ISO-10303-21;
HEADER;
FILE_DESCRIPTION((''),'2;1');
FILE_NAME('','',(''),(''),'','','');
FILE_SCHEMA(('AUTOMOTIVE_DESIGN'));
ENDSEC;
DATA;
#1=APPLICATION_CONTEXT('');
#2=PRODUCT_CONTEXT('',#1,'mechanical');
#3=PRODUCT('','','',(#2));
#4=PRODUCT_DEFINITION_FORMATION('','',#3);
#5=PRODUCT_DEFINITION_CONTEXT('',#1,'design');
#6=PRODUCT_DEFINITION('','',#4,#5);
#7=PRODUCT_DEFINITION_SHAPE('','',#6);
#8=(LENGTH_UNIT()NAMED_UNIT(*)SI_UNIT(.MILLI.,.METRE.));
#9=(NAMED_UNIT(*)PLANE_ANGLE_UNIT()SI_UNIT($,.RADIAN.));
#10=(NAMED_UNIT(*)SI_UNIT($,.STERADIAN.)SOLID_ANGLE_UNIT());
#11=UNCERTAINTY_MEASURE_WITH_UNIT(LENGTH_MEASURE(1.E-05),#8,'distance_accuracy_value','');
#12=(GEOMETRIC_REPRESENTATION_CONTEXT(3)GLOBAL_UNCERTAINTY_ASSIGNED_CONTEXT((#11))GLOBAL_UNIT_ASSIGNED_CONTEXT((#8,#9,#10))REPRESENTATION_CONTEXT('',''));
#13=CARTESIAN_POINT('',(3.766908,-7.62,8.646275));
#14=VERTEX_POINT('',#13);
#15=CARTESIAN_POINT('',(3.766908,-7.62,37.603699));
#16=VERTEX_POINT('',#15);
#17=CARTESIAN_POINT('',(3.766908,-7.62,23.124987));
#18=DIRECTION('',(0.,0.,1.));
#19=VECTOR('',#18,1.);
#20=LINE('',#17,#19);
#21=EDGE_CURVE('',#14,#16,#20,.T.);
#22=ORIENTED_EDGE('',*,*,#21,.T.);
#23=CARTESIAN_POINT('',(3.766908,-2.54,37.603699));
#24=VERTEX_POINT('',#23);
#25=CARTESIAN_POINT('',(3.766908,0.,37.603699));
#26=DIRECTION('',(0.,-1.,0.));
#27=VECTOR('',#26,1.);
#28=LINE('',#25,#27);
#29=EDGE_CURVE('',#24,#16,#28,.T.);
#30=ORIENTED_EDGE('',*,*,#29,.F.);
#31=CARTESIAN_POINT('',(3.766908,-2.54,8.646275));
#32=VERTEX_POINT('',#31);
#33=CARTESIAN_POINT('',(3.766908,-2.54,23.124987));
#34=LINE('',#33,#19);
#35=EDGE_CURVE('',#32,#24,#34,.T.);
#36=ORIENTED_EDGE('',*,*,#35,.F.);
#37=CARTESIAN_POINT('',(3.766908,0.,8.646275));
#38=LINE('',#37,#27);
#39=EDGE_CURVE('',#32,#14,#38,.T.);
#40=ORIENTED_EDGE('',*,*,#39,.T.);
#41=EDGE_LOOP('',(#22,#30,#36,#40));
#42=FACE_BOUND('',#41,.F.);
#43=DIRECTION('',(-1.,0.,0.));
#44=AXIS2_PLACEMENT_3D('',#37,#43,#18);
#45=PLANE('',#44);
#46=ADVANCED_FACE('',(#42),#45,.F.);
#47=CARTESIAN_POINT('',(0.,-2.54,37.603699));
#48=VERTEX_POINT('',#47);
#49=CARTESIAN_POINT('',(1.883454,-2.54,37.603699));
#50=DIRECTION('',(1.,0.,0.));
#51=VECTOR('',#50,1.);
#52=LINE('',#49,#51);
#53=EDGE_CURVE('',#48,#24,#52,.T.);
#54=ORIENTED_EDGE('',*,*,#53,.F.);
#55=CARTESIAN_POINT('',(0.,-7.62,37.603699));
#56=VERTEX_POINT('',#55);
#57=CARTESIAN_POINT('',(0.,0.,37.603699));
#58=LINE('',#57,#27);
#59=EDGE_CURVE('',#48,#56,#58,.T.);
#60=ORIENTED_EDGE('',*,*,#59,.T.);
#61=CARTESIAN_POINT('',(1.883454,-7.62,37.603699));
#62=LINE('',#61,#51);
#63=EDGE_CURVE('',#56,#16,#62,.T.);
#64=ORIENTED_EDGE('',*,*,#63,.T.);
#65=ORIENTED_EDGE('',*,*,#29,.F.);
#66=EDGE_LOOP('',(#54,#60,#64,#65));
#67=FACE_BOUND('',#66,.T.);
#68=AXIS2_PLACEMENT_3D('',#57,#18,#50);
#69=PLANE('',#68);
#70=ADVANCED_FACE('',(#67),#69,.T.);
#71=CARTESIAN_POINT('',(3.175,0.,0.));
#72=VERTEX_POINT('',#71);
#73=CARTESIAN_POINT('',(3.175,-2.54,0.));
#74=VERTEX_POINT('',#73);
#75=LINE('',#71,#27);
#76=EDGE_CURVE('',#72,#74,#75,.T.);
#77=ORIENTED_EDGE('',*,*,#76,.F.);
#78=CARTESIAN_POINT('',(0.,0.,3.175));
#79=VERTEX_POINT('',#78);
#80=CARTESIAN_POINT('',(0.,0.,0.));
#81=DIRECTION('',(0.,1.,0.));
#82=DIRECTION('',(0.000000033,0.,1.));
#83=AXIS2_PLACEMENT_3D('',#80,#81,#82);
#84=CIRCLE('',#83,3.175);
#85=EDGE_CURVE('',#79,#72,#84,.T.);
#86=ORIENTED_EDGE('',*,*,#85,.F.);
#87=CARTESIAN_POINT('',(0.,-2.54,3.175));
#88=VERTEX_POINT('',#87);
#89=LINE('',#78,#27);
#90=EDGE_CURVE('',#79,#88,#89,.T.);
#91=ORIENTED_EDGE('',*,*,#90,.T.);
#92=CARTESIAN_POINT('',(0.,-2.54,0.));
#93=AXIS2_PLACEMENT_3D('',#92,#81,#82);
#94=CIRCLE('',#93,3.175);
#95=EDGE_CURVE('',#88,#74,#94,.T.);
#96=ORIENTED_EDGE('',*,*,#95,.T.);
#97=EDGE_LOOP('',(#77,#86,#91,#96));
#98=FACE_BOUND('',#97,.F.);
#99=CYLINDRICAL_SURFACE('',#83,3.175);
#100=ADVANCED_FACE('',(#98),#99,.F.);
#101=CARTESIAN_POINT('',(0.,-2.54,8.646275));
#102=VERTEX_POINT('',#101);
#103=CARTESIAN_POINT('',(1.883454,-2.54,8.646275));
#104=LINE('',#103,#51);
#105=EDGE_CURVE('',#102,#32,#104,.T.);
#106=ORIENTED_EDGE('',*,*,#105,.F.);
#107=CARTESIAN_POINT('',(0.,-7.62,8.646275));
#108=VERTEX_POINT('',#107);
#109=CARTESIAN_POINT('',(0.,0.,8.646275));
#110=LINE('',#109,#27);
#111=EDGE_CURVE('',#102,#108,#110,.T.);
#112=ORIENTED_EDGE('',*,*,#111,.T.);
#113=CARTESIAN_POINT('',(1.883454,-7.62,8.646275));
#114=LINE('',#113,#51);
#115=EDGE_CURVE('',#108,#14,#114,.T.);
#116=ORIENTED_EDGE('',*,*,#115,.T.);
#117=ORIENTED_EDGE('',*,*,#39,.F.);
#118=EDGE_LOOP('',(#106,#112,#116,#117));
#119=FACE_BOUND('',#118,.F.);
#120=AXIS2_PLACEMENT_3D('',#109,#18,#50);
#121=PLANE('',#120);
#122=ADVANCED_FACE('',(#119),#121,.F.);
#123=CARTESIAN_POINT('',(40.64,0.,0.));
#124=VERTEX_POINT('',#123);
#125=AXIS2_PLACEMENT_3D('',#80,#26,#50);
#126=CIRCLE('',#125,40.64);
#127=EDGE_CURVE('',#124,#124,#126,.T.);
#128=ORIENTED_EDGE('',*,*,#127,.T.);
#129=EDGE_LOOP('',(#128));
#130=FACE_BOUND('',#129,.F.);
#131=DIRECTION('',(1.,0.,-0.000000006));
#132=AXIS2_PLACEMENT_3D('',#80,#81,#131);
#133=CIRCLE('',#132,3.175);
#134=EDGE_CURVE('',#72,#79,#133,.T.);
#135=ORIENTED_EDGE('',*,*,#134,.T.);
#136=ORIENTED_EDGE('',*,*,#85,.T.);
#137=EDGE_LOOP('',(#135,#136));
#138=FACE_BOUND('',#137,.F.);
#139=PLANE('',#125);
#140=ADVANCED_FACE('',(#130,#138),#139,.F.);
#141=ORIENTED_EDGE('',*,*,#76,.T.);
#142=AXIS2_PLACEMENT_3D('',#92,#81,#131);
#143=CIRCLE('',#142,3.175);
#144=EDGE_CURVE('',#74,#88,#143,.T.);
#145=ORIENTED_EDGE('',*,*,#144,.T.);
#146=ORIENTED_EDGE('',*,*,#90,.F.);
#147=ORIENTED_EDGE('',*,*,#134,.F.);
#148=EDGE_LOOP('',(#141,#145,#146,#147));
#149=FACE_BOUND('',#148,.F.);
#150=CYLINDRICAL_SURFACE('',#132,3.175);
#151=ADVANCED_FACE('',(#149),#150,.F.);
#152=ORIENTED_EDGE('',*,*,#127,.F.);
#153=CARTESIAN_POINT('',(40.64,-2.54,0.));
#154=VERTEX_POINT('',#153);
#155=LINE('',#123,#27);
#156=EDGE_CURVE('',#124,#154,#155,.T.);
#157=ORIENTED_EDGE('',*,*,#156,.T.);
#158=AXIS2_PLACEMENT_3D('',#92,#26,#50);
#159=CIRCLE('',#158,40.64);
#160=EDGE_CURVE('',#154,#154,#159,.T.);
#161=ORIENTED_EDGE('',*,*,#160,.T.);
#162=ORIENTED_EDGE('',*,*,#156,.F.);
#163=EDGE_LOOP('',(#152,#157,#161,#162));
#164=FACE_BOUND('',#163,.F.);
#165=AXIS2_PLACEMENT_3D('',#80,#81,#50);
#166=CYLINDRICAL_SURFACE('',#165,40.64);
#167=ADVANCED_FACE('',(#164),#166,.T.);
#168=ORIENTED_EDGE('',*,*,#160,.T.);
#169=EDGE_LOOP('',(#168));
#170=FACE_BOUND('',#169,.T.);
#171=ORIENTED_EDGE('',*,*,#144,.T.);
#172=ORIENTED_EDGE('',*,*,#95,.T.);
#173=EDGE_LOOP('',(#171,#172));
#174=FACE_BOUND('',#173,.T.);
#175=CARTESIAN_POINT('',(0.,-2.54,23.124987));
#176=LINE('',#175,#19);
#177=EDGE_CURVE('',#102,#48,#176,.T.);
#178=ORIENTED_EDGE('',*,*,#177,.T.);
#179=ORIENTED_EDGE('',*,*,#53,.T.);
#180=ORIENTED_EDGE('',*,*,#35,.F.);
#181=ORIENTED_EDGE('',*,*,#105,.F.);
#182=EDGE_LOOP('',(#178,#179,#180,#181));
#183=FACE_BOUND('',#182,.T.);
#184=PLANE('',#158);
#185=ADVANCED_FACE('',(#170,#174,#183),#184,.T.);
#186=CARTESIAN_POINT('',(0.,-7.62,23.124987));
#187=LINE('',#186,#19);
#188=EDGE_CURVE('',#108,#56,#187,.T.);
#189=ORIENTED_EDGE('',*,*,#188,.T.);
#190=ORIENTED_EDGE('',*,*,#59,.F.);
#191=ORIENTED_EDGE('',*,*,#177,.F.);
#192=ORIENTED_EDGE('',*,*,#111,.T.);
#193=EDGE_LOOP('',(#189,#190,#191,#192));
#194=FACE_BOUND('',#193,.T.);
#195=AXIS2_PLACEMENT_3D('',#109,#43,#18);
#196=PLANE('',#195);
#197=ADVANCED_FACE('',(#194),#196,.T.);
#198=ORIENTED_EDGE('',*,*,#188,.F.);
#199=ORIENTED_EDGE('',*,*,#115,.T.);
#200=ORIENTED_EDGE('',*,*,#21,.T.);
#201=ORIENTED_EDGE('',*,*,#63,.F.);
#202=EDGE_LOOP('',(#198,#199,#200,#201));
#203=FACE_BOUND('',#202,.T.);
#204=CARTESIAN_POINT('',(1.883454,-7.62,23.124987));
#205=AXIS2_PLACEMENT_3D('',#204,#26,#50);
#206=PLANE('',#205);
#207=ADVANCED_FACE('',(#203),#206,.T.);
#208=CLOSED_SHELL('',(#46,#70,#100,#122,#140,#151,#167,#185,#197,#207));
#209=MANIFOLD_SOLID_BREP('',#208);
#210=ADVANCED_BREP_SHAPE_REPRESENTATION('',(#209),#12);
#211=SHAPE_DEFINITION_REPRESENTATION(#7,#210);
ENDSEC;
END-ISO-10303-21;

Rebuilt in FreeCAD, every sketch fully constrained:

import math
import FreeCAD as App
import Part
import Sketcher
from FreeCAD import Vector
Q = App.Units.Quantity


def add_polygon(sketch, points):
    """Adds a closed chain of lines whose ends are joined by coincident constraints."""
    first, n = sketch.GeometryCount, len(points)
    for a, b in zip(points, points[1:] + points[:1]):
        sketch.addGeometry(Part.LineSegment(App.Vector(*a, 0), App.Vector(*b, 0)), False)
    for i in range(n):
        sketch.addConstraint(Sketcher.Constraint("Coincident", first + i, 2, first + (i + 1) % n, 1))

doc = App.newDocument("Part")
body = doc.addObject("PartDesign::Body", "Body")

# Sketch on XZ plane
sketch1 = body.newObject("Sketcher::SketchObject", "Sketch")
sketch1.AttachmentSupport = (doc.getObject("XZ_Plane"), [""])
sketch1.MapMode = "FlatFace"
sketch1.addGeometry(Part.Circle(Vector(0, 0, 0), Vector(0, 0, 1), 40.64), False)  # 0
sketch1.addGeometry(Part.ArcOfCircle(Part.Circle(Vector(0, 0, 0), Vector(0, 0, 1), 3.175), math.radians(90), math.radians(360)), False)  # 1
sketch1.addGeometry(Part.ArcOfCircle(Part.Circle(Vector(0, 0, 0), Vector(0, 0, 1), 3.175), math.radians(0.000002), math.radians(89.999998)), False)  # 2
add_polygon(sketch1, [(3.766908, 8.646275), (0, 8.646275), (0, 37.603699), (3.766908, 37.603699)])  # lines 3-6
sketch1.addConstraint(Sketcher.Constraint("Tangent", 1, 1, 2, 2))
sketch1.addConstraint(Sketcher.Constraint("Coincident", 2, 1, 1, 2))
sketch1.addConstraint(Sketcher.Constraint("Horizontal", 3))
sketch1.addConstraint(Sketcher.Constraint("Vertical", 4))
sketch1.addConstraint(Sketcher.Constraint("Horizontal", 5))
sketch1.addConstraint(Sketcher.Constraint("Vertical", 6))
sketch1.addConstraint(Sketcher.Constraint("Coincident", 0, 3, -1, 1))
sketch1.addConstraint(Sketcher.Constraint("Coincident", 1, 3, -1, 1))
sketch1.addConstraint(Sketcher.Constraint("PointOnObject", 1, 1, -2))
sketch1.addConstraint(Sketcher.Constraint("PointOnObject", 2, 1, -1))
sketch1.addConstraint(Sketcher.Constraint("PointOnObject", 3, 2, -2))
sketch1.addConstraint(Sketcher.Constraint("Diameter", 0, Q("3.2 in")))
sketch1.addConstraint(Sketcher.Constraint("Radius", 1, Q("0.125 in")))
sketch1.addConstraint(Sketcher.Constraint("DistanceY", -1, 1, 4, 2, Q("37.603699 mm")))
sketch1.addConstraint(Sketcher.Constraint("DistanceX", 3, 2, 3, 1, Q("3.766908 mm")))
sketch1.addConstraint(Sketcher.Constraint("DistanceY", 4, 1, 4, 2, Q("28.957423 mm")))
pad1 = body.newObject("PartDesign::Pad", "Pad")
pad1.Profile = sketch1
pad1.Length = Q("0.1 in")

# Sketch on XZ plane
sketch2 = body.newObject("Sketcher::SketchObject", "Sketch001")
sketch2.AttachmentSupport = (doc.getObject("XZ_Plane"), [""])
sketch2.MapMode = "FlatFace"
add_polygon(sketch2, [(0, 37.603699), (0, 8.646275), (3.766908, 8.646275), (3.766908, 37.603699)])  # lines 0-3
sketch2.addConstraint(Sketcher.Constraint("Vertical", 0))
sketch2.addConstraint(Sketcher.Constraint("Horizontal", 1))
sketch2.addConstraint(Sketcher.Constraint("Vertical", 2))
sketch2.addConstraint(Sketcher.Constraint("Horizontal", 3))
sketch2.addConstraint(Sketcher.Constraint("PointOnObject", 0, 2, -2))
sketch2.addConstraint(Sketcher.Constraint("DistanceY", -1, 1, 2, 2, Q("37.603699 mm")))
sketch2.addConstraint(Sketcher.Constraint("DistanceX", 1, 1, 1, 2, Q("3.766908 mm")))
sketch2.addConstraint(Sketcher.Constraint("DistanceY", 0, 2, 0, 1, Q("28.957423 mm")))
pad2 = body.newObject("PartDesign::Pad", "Pad001")
pad2.Profile = sketch2
pad2.Length = Q("0.3 in")

doc.recompute()
